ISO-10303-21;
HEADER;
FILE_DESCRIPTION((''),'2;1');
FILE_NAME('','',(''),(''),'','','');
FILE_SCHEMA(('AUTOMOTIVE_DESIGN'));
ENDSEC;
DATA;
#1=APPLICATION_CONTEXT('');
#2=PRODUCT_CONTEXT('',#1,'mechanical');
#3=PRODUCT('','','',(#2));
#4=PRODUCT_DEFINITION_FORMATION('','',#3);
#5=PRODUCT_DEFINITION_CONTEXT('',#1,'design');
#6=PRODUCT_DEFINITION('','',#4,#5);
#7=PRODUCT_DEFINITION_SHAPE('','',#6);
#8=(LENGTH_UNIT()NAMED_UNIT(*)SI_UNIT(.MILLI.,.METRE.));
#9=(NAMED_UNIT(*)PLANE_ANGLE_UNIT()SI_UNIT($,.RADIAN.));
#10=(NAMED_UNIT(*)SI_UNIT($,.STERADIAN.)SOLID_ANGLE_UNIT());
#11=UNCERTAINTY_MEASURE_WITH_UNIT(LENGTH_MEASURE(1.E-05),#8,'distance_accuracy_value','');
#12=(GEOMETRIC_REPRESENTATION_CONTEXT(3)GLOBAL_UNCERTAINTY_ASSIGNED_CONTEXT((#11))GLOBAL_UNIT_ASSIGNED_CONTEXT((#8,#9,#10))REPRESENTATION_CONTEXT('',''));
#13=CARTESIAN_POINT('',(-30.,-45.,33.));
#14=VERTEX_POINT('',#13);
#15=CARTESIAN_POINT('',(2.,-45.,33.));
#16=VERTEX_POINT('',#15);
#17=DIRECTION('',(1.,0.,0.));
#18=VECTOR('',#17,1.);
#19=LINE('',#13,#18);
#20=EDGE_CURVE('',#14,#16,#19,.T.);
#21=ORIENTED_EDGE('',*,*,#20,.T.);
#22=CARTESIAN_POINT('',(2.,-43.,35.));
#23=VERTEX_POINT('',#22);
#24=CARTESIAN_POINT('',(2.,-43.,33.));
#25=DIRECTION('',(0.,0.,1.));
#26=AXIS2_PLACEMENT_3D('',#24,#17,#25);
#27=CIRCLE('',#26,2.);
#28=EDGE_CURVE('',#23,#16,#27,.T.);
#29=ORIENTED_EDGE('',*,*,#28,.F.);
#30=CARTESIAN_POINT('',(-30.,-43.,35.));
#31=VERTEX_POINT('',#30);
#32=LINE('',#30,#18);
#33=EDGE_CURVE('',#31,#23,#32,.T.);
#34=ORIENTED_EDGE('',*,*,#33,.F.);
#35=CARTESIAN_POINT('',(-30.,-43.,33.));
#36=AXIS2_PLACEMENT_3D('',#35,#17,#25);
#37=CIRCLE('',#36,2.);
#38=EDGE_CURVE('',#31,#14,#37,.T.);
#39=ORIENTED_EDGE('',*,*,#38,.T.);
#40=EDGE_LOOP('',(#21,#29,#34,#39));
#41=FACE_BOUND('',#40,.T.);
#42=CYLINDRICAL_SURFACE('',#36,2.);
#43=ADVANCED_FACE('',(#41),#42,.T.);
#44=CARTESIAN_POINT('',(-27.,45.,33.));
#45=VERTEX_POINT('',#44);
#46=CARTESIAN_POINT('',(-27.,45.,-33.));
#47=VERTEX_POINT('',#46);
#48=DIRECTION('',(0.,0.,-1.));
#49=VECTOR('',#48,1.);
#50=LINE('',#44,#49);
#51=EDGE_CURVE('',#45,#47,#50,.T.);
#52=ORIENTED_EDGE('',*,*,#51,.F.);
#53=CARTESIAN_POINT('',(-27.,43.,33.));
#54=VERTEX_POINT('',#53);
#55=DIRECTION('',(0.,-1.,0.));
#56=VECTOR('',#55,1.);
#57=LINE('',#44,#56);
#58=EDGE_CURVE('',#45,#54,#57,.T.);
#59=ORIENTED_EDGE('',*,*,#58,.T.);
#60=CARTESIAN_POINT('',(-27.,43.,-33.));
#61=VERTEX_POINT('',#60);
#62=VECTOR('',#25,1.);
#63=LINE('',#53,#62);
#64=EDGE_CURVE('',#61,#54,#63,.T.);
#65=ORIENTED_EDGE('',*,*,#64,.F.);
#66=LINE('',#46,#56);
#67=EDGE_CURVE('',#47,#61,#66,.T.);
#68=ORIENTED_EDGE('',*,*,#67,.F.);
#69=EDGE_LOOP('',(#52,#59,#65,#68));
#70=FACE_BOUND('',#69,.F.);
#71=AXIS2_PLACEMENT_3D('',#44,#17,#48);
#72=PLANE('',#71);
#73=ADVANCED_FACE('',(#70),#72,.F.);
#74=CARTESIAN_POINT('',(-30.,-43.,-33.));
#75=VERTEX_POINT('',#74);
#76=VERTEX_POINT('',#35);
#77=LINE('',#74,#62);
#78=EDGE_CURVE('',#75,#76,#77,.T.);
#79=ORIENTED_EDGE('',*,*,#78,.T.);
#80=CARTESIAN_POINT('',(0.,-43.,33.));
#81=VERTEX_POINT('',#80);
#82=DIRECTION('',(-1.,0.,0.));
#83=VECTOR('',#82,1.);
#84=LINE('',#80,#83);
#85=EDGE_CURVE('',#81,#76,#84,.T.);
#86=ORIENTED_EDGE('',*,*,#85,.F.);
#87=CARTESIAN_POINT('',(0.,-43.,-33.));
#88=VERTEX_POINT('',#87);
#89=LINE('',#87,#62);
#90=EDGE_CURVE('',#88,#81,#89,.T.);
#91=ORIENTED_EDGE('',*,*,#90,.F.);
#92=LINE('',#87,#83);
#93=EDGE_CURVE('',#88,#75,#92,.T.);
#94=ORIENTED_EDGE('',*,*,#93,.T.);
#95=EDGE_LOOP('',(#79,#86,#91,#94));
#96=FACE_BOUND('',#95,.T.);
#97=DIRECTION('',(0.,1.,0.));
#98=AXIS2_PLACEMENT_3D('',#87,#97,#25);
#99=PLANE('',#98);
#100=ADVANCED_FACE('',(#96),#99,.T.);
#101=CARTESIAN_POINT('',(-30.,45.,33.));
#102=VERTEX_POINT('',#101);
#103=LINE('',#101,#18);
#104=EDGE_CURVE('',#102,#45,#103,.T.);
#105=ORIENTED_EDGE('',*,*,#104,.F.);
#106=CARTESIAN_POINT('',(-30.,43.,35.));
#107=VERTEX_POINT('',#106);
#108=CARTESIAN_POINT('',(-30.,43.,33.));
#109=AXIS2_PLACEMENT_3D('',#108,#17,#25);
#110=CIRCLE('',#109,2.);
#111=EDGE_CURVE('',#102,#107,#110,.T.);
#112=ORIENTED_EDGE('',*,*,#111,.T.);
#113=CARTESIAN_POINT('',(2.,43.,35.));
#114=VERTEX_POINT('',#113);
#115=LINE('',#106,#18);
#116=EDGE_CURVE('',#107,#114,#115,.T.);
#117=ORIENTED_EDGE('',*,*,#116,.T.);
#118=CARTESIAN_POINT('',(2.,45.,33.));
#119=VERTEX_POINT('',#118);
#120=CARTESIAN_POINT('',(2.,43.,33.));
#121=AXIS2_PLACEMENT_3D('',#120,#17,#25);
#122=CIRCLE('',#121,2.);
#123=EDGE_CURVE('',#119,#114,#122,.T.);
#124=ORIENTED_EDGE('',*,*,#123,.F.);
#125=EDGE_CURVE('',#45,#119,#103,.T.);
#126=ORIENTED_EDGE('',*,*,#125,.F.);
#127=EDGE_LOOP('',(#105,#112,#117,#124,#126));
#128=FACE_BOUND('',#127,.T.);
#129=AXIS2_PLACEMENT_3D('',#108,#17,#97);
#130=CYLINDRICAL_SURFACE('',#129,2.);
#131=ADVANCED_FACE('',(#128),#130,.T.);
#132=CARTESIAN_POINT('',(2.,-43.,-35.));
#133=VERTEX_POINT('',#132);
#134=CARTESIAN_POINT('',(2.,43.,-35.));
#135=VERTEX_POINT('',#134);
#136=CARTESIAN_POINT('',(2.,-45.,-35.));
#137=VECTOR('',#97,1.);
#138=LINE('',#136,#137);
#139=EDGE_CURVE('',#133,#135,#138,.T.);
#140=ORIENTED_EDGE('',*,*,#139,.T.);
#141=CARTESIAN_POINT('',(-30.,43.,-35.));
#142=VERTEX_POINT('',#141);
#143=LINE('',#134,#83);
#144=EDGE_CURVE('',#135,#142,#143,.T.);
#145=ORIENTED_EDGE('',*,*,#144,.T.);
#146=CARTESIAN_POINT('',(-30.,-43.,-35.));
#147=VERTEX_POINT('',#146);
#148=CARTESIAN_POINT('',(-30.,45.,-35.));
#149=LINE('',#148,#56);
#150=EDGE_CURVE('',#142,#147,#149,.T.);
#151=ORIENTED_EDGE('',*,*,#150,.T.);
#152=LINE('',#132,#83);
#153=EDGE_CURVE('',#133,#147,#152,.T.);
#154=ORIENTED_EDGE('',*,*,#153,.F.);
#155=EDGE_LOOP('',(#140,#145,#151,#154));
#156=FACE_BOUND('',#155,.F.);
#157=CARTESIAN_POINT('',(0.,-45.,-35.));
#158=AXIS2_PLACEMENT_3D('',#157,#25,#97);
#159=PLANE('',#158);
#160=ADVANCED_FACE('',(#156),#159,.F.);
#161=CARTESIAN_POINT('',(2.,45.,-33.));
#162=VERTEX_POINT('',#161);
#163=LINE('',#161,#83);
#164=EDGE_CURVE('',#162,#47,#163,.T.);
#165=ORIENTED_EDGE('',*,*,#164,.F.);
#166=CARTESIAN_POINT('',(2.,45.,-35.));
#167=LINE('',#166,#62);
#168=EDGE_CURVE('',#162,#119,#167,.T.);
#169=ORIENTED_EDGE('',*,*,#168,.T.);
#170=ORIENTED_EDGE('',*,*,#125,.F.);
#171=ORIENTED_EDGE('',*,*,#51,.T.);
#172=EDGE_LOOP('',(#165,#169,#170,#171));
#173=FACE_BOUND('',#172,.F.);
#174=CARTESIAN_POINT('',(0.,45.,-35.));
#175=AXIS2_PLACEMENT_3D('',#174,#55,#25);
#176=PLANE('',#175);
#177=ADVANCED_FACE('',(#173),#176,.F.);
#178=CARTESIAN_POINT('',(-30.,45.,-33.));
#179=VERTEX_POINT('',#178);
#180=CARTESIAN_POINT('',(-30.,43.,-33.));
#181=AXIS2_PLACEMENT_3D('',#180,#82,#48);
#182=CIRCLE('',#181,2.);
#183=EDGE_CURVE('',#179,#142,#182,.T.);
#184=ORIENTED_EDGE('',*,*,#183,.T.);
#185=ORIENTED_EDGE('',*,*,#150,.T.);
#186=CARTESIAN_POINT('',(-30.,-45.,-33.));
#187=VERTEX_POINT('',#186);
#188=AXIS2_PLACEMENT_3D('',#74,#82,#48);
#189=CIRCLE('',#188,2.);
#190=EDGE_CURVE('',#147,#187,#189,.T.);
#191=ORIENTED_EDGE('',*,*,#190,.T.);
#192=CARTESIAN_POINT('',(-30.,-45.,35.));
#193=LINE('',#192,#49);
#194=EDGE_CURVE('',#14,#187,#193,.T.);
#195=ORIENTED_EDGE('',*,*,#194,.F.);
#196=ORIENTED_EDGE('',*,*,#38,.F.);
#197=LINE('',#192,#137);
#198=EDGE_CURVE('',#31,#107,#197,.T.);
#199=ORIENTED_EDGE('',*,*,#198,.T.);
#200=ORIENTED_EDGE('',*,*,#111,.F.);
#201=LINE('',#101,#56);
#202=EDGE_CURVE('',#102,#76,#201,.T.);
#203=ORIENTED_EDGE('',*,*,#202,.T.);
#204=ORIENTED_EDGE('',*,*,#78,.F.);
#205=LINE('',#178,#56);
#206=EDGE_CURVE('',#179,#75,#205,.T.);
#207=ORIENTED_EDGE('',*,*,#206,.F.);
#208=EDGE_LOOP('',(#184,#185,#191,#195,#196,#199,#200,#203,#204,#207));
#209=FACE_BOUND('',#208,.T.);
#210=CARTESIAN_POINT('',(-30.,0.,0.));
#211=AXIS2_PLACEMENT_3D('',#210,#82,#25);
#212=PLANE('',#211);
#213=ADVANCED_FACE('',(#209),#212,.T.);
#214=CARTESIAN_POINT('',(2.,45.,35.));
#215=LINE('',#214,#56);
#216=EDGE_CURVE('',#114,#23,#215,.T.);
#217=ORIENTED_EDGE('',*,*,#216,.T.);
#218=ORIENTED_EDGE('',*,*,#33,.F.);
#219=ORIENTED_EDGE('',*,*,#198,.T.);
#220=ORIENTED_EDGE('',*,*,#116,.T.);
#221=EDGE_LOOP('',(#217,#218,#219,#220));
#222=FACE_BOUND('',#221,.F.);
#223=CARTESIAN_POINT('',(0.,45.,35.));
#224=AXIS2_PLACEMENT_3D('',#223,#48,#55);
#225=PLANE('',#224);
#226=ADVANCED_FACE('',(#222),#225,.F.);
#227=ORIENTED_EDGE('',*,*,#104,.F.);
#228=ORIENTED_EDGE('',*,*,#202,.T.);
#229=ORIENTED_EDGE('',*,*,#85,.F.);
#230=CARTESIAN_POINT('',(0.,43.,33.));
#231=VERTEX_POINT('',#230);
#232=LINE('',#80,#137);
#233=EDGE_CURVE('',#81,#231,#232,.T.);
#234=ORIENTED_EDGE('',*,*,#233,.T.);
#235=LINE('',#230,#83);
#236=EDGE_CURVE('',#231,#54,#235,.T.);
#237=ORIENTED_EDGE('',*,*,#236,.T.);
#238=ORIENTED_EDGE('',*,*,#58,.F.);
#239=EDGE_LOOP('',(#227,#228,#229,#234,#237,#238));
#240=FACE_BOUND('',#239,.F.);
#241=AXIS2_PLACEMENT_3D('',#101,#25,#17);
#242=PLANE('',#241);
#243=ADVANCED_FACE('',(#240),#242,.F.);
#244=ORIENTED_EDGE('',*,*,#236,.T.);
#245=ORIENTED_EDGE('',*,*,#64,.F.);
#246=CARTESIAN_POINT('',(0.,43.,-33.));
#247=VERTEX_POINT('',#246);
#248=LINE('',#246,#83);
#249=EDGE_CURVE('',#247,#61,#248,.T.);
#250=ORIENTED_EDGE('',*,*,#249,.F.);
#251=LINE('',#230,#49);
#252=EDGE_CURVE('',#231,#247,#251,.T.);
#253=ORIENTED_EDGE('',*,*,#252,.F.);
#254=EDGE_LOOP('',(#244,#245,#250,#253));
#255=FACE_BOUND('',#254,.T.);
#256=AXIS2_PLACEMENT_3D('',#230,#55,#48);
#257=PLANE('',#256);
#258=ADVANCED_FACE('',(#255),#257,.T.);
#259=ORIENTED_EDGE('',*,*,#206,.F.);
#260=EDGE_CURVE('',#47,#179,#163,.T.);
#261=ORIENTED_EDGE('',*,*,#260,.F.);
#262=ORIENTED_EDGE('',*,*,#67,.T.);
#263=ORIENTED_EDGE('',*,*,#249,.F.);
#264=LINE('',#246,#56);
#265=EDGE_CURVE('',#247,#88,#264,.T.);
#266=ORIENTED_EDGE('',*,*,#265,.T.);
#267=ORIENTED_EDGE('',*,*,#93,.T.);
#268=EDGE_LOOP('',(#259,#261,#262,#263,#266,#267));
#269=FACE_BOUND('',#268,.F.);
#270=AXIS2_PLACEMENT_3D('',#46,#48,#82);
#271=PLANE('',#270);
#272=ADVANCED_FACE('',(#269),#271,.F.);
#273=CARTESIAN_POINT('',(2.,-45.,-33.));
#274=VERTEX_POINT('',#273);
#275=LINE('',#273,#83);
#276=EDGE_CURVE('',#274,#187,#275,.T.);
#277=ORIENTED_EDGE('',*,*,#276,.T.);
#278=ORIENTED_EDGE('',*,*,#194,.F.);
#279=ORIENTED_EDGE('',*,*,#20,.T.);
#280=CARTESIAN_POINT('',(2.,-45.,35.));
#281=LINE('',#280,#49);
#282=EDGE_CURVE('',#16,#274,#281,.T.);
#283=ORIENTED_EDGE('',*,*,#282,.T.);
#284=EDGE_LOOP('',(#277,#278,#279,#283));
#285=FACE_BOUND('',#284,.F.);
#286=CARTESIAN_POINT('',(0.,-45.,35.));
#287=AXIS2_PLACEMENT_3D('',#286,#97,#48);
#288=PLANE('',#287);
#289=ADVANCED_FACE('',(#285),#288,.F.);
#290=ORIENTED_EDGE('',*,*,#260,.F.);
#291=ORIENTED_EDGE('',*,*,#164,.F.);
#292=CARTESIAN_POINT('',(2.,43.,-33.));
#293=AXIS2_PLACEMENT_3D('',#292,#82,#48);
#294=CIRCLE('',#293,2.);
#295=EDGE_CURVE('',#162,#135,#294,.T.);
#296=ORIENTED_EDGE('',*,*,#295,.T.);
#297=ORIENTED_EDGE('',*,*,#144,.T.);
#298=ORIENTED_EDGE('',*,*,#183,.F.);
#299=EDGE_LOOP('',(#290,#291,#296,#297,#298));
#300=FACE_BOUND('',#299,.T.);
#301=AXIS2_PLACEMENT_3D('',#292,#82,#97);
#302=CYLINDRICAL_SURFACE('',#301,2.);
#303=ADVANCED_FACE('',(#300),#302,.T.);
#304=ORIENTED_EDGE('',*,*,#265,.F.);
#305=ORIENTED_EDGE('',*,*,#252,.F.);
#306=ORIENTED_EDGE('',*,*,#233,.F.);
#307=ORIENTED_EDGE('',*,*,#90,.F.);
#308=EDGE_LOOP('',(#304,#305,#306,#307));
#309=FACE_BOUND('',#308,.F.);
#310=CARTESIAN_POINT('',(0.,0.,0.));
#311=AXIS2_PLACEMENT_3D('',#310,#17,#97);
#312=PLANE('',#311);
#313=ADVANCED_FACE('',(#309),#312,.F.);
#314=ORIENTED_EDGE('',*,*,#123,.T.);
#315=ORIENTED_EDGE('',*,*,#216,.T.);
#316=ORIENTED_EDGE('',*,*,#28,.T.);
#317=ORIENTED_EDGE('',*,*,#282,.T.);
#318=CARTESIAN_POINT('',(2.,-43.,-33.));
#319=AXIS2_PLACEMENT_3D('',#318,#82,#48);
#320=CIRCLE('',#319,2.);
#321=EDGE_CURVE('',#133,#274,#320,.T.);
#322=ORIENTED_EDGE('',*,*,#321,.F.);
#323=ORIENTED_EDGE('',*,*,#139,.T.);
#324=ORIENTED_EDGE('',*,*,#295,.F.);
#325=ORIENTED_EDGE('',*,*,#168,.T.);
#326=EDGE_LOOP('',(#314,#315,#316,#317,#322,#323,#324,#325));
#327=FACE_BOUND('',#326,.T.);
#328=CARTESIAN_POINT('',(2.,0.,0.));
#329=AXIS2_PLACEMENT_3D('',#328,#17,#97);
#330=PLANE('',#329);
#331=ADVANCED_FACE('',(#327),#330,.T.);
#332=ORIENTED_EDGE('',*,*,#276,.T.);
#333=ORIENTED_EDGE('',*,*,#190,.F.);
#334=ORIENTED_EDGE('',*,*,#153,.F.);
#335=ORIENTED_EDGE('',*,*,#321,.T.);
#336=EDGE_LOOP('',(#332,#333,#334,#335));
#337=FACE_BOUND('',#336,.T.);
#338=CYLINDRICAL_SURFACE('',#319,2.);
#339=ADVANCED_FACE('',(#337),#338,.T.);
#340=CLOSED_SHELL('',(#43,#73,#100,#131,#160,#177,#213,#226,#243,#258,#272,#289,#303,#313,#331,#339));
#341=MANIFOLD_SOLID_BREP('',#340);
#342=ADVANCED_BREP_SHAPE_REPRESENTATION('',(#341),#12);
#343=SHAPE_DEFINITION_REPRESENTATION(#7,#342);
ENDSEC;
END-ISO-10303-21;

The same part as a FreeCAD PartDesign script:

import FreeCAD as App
import Part
import Sketcher


def edges_at(feature, points):
    """Names of the edges that pass closest to the given points."""
    edges = feature.Shape.Edges
    near = lambda p: min(range(len(edges)), key=lambda i: edges[i].distToShape(Part.Vertex(*p))[0])
    return sorted({f"Edge{near(p) + 1}" for p in points})

doc = App.newDocument("Part")
params = doc.addObject("Spreadsheet::Sheet", "Params")
for row, (alias, value) in enumerate([
    ("sketch1_width", "90 mm"),
    ("sketch1_height", "70 mm"),
    ("pad1_length", "2 mm"),
    ("sketch2_width", "90 mm"),
    ("sketch2_height", "70 mm"),
    ("pad2_length", "30 mm"),
    ("fillet_radius", "2 mm"),
    ("fillet2_radius", "2 mm"),
    ("sketch3_width", "3 mm"),
    ("sketch3_height", "66 mm"),
    ("pocket1_length", "10 mm"),
], start=1):
    params.set(f"A{row}", alias)
    params.set(f"B{row}", "=" + value)
    params.setAlias(f"B{row}", alias)

body = doc.addObject("PartDesign::Body", "Body")

# Sketch on YZ plane
sketch1 = body.newObject("Sketcher::SketchObject", "Sketch")
sketch1.AttachmentSupport = (doc.getObject("YZ_Plane"), [""])
sketch1.MapMode = "FlatFace"
sketch1.addGeometry([
    Part.LineSegment(App.Vector(45, -35, 0), App.Vector(45, 35, 0)),
    Part.LineSegment(App.Vector(45, 35, 0), App.Vector(-45, 35, 0)),
    Part.LineSegment(App.Vector(-45, 35, 0), App.Vector(-45, -35, 0)),
    Part.LineSegment(App.Vector(-45, -35, 0), App.Vector(45, -35, 0)),
], False)
sketch1.addConstraint([
    Sketcher.Constraint("Coincident", 0, 2, 1, 1),
    Sketcher.Constraint("Coincident", 1, 2, 2, 1),
    Sketcher.Constraint("Coincident", 2, 2, 3, 1),
    Sketcher.Constraint("Coincident", 3, 2, 0, 1),
    Sketcher.Constraint("Vertical", 0),
    Sketcher.Constraint("Horizontal", 1),
    Sketcher.Constraint("Vertical", 2),
    Sketcher.Constraint("Horizontal", 3),
    Sketcher.Constraint("Symmetric", 0, 2, 2, 2, -1, 1),
    Sketcher.Constraint("DistanceX", 1, 2, 1, 1, 90.0),
    Sketcher.Constraint("DistanceY", 0, 1, 0, 2, 70.0),
])
sketch1.setExpression("Constraints[9]", "Params.sketch1_width")
sketch1.setExpression("Constraints[10]", "Params.sketch1_height")
pad1 = body.newObject("PartDesign::Pad", "Pad")
pad1.Profile = sketch1
pad1.setExpression("Length", "Params.pad1_length")

# Sketch on YZ plane
sketch2 = body.newObject("Sketcher::SketchObject", "Sketch001")
sketch2.AttachmentSupport = (doc.getObject("YZ_Plane"), [""])
sketch2.MapMode = "FlatFace"
sketch2.addGeometry([
    Part.LineSegment(App.Vector(-45, -35, 0), App.Vector(-45, 35, 0)),  # 0
    Part.LineSegment(App.Vector(-45, 35, 0), App.Vector(45, 35, 0)),  # 1
    Part.LineSegment(App.Vector(45, 35, 0), App.Vector(45, -35, 0)),  # 2
    Part.LineSegment(App.Vector(45, -35, 0), App.Vector(-45, -35, 0)),  # 3
    Part.LineSegment(App.Vector(-43, 33, 0), App.Vector(-43, -33, 0)),  # 4
    Part.LineSegment(App.Vector(-43, -33, 0), App.Vector(43, -33, 0)),  # 5
    Part.LineSegment(App.Vector(43, -33, 0), App.Vector(43, 33, 0)),  # 6
    Part.LineSegment(App.Vector(43, 33, 0), App.Vector(-43, 33, 0)),  # 7
], False)
sketch2.addConstraint([
    Sketcher.Constraint("Coincident", 0, 2, 1, 1),
    Sketcher.Constraint("Coincident", 1, 2, 2, 1),
    Sketcher.Constraint("Coincident", 2, 2, 3, 1),
    Sketcher.Constraint("Coincident", 3, 2, 0, 1),
    Sketcher.Constraint("Coincident", 4, 2, 5, 1),
    Sketcher.Constraint("Coincident", 5, 2, 6, 1),
    Sketcher.Constraint("Coincident", 6, 2, 7, 1),
    Sketcher.Constraint("Coincident", 7, 2, 4, 1),
    Sketcher.Constraint("Vertical", 0),
    Sketcher.Constraint("Horizontal", 1),
    Sketcher.Constraint("Vertical", 2),
    Sketcher.Constraint("Horizontal", 3),
    Sketcher.Constraint("Vertical", 4),
    Sketcher.Constraint("Horizontal", 5),
    Sketcher.Constraint("Vertical", 6),
    Sketcher.Constraint("Horizontal", 7),
    Sketcher.Constraint("Symmetric", 0, 2, 2, 2, -1, 1),
    Sketcher.Constraint("Symmetric", 4, 2, 6, 2, -1, 1),
    Sketcher.Constraint("DistanceX", 3, 2, 4, 2, 2.0),
    Sketcher.Constraint("DistanceY", 3, 2, 4, 2, 2.0),
    Sketcher.Constraint("DistanceX", 1, 1, 1, 2, 90.0),
    Sketcher.Constraint("DistanceY", 0, 1, 0, 2, 70.0),
])
sketch2.setExpression("Constraints[20]", "Params.sketch2_width")
sketch2.setExpression("Constraints[21]", "Params.sketch2_height")
pad2 = body.newObject("PartDesign::Pad", "Pad001")
pad2.Profile = sketch2
pad2.setExpression("Length", "Params.pad2_length")
pad2.Reversed = True
doc.recompute()

fillet = body.newObject("PartDesign::Fillet", "Fillet")
fillet.Base = (pad2, edges_at(pad2, [(-14, 45, 35), (-14, -45, 35)]))
fillet.setExpression("Radius", "Params.fillet_radius")
doc.recompute()

fillet2 = body.newObject("PartDesign::Fillet", "Fillet001")
fillet2.Base = (fillet, edges_at(fillet, [(-14, 45, -35), (-14, -45, -35)]))
fillet2.setExpression("Radius", "Params.fillet2_radius")

# Sketch on XZ plane
sketch3 = body.newObject("Sketcher::SketchObject", "Sketch002")
sketch3.AttachmentSupport = (doc.getObject("XZ_Plane"), [""])
sketch3.MapMode = "FlatFace"
sketch3.AttachmentOffset = App.Placement(App.Vector(0, 0, -45), App.Rotation())
sketch3.addGeometry([
    Part.LineSegment(App.Vector(-27, -33, 0), App.Vector(-30, -33, 0)),
    Part.LineSegment(App.Vector(-30, -33, 0), App.Vector(-30, 33, 0)),
    Part.LineSegment(App.Vector(-30, 33, 0), App.Vector(-27, 33, 0)),
    Part.LineSegment(App.Vector(-27, 33, 0), App.Vector(-27, -33, 0)),
], False)
sketch3.addConstraint([
    Sketcher.Constraint("Coincident", 0, 2, 1, 1),
    Sketcher.Constraint("Coincident", 1, 2, 2, 1),
    Sketcher.Constraint("Coincident", 2, 2, 3, 1),
    Sketcher.Constraint("Coincident", 3, 2, 0, 1),
    Sketcher.Constraint("Horizontal", 0),
    Sketcher.Constraint("Vertical", 1),
    Sketcher.Constraint("Horizontal", 2),
    Sketcher.Constraint("Vertical", 3),
    Sketcher.Constraint("DistanceX", 0, 2, 0, 1, 3.0),
    Sketcher.Constraint("DistanceY", 1, 1, 1, 2, 66.0),
    Sketcher.Constraint("DistanceX", 0, 2, -1, 1, 30.0),
    Sketcher.Constraint("DistanceY", 0, 2, -1, 1, 33.0),
])
sketch3.setExpression("Constraints[8]", "Params.sketch3_width")
sketch3.setExpression("Constraints[9]", "Params.sketch3_height")
pocket1 = body.newObject("PartDesign::Pocket", "Pocket")
pocket1.Profile = sketch3
pocket1.setExpression("Length", "Params.pocket1_length")
pocket1.Reversed = True

doc.recompute()
